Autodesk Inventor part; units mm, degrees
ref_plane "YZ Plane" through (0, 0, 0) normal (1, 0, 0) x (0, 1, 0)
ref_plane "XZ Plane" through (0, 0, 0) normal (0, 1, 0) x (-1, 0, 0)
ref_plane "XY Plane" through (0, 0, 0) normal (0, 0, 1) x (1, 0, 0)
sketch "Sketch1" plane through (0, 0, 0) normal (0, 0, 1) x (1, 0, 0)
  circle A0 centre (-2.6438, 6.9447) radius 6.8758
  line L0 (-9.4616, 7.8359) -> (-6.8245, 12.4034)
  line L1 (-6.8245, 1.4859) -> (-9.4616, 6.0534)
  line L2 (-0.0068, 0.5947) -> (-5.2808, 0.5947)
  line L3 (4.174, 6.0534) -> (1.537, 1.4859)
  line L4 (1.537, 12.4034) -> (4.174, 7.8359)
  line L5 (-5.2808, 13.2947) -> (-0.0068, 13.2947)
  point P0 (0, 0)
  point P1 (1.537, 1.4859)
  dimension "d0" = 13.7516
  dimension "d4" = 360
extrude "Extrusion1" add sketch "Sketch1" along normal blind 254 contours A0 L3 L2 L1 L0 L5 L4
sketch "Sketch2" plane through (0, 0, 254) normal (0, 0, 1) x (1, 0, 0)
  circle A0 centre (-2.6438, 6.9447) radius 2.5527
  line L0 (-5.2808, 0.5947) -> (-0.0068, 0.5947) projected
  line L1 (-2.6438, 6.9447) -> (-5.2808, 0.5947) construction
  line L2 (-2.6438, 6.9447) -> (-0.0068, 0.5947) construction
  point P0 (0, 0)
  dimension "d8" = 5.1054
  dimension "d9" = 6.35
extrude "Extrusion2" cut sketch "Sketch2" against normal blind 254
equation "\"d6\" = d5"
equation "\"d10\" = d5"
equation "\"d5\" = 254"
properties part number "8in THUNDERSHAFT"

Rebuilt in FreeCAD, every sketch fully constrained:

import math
import FreeCAD as App
import Part
import Sketcher
Q = App.Units.Quantity

doc = App.newDocument("Part")
body = doc.addObject("PartDesign::Body", "Body")

sketch1 = doc.addObject("Sketcher::SketchObject", "Sketch")
body.addObject(sketch1)
sketch1.AttachmentSupport = (doc.XY_Plane, [""])
sketch1.MapMode = "FlatFace"
sketch1.addGeometry(Part.ArcOfCircle(Part.Circle(App.Vector(-2.6, 6.9, 0), App.Vector(0, 0, 1), 6.9), math.radians(-7.45), math.radians(7.45)), False)
sketch1.addGeometry(Part.LineSegment(App.Vector(4.2, 7.8, 0), App.Vector(1.5, 12.4, 0)), False)
sketch1.addGeometry(Part.ArcOfCircle(Part.Circle(App.Vector(-2.6, 6.9, 0), App.Vector(0, 0, 1), 6.9), math.radians(52.55), math.radians(67.45)), False)
sketch1.addGeometry(Part.LineSegment(App.Vector(0, 13.3, 0), App.Vector(-5.3, 13.3, 0)), False)
sketch1.addGeometry(Part.ArcOfCircle(Part.Circle(App.Vector(-2.6, 6.9, 0), App.Vector(0, 0, 1), 6.9), math.radians(112.55), math.radians(127.45)), False)
sketch1.addGeometry(Part.LineSegment(App.Vector(-6.8, 12.4, 0), App.Vector(-9.5, 7.8, 0)), False)
sketch1.addGeometry(Part.ArcOfCircle(Part.Circle(App.Vector(-2.6, 6.9, 0), App.Vector(0, 0, 1), 6.9), math.radians(172.55), math.radians(187.45)), False)
sketch1.addGeometry(Part.LineSegment(App.Vector(-9.5, 6.1, 0), App.Vector(-6.8, 1.5, 0)), False)
sketch1.addGeometry(Part.ArcOfCircle(Part.Circle(App.Vector(-2.6, 6.9, 0), App.Vector(0, 0, 1), 6.9), math.radians(-127.45), math.radians(-112.55)), False)
sketch1.addGeometry(Part.LineSegment(App.Vector(-5.3, 0.6, 0), App.Vector(0, 0.6, 0)), False)
sketch1.addGeometry(Part.ArcOfCircle(Part.Circle(App.Vector(-2.6, 6.9, 0), App.Vector(0, 0, 1), 6.9), math.radians(-67.45), math.radians(-52.55)), False)
sketch1.addGeometry(Part.LineSegment(App.Vector(1.5, 1.5, 0), App.Vector(4.2, 6.1, 0)), False)
sketch1.addConstraint(Sketcher.Constraint("Coincident", 0, 2, 1, 1))
sketch1.addConstraint(Sketcher.Constraint("Coincident", 1, 2, 2, 1))
sketch1.addConstraint(Sketcher.Constraint("Coincident", 2, 2, 3, 1))
sketch1.addConstraint(Sketcher.Constraint("Coincident", 3, 2, 4, 1))
sketch1.addConstraint(Sketcher.Constraint("Coincident", 4, 2, 5, 1))
sketch1.addConstraint(Sketcher.Constraint("Coincident", 5, 2, 6, 1))
sketch1.addConstraint(Sketcher.Constraint("Coincident", 6, 2, 7, 1))
sketch1.addConstraint(Sketcher.Constraint("Coincident", 7, 2, 8, 1))
sketch1.addConstraint(Sketcher.Constraint("Coincident", 8, 2, 9, 1))
sketch1.addConstraint(Sketcher.Constraint("Coincident", 9, 2, 10, 1))
sketch1.addConstraint(Sketcher.Constraint("Coincident", 10, 2, 11, 1))
sketch1.addConstraint(Sketcher.Constraint("Coincident", 11, 2, 0, 1))
sketch1.addConstraint(Sketcher.Constraint("Horizontal", 3))
sketch1.addConstraint(Sketcher.Constraint("Horizontal", 9))
sketch1.addConstraint(Sketcher.Constraint("Coincident", 2, 3, 0, 3))
sketch1.addConstraint(Sketcher.Constraint("Coincident", 4, 3, 0, 3))
sketch1.addConstraint(Sketcher.Constraint("Coincident", 6, 3, 0, 3))
sketch1.addConstraint(Sketcher.Constraint("Coincident", 8, 3, 0, 3))
sketch1.addConstraint(Sketcher.Constraint("Coincident", 10, 3, 0, 3))
sketch1.addConstraint(Sketcher.Constraint("Equal", 0, 2))
sketch1.addConstraint(Sketcher.Constraint("Equal", 2, 4))
sketch1.addConstraint(Sketcher.Constraint("Equal", 4, 6))
sketch1.addConstraint(Sketcher.Constraint("Equal", 6, 8))
sketch1.addConstraint(Sketcher.Constraint("Equal", 8, 10))
sketch1.addConstraint(Sketcher.Constraint("Parallel", 1, 7))
sketch1.addConstraint(Sketcher.Constraint("Parallel", 5, 11))
sketch1.addConstraint(Sketcher.Constraint("Horizontal", 1, 2, 4, 2))
sketch1.addConstraint(Sketcher.Constraint("Horizontal", 0, 2, 5, 2))
sketch1.addConstraint(Sketcher.Constraint("Horizontal", 7, 2, 10, 2))
sketch1.addConstraint(Sketcher.Constraint("Vertical", 5, 2, 6, 2))
sketch1.addConstraint(Sketcher.Constraint("Vertical", 3, 2, 8, 2))
sketch1.addConstraint(Sketcher.Constraint("Radius", 0, Q("0.2707 in")))
sketch1.addConstraint(Sketcher.Constraint("Angle", 1, Q("119.9996 deg")))
sketch1.addConstraint(Sketcher.Constraint("DistanceY", 0, 3, 2, 2, Q("0.25 in")))
sketch1.addConstraint(Sketcher.Constraint("DistanceY", 10, 2, 0, 2, Q("0.25 in")))
sketch1.addConstraint(Sketcher.Constraint("DistanceY", -1, 1, 0, 2, Q("0.3085 in")))
sketch1.addConstraint(Sketcher.Constraint("DistanceX", -1, 1, 1, 2, Q("0.0605 in")))
pad1 = doc.addObject("PartDesign::Pad", "Pad")
body.addObject(pad1)
pad1.Profile = sketch1
pad1.Length = Q("10 in")

sketch2 = doc.addObject("Sketcher::SketchObject", "Sketch001")
body.addObject(sketch2)
sketch2.AttachmentSupport = (doc.XY_Plane, [""])
sketch2.MapMode = "FlatFace"
sketch2.AttachmentOffset = App.Placement(App.Vector(0, 0, 10 * 25.4), App.Rotation())
sketch2.addGeometry(Part.Circle(App.Vector(-2.6, 6.9, 0), App.Vector(0, 0, 1), 2.6), False)
sketch2.addConstraint(Sketcher.Constraint("Diameter", 0, Q("0.201 in")))
sketch2.addConstraint(Sketcher.Constraint("DistanceX", 0, 3, -1, 1, Q("2.6438 mm")))
sketch2.addConstraint(Sketcher.Constraint("DistanceY", -1, 1, 0, 3, Q("6.9447 mm")))
pocket1 = doc.addObject("PartDesign::Pocket", "Pocket")
body.addObject(pocket1)
pocket1.Profile = sketch2
pocket1.Length = Q("10 in")

doc.recompute()
